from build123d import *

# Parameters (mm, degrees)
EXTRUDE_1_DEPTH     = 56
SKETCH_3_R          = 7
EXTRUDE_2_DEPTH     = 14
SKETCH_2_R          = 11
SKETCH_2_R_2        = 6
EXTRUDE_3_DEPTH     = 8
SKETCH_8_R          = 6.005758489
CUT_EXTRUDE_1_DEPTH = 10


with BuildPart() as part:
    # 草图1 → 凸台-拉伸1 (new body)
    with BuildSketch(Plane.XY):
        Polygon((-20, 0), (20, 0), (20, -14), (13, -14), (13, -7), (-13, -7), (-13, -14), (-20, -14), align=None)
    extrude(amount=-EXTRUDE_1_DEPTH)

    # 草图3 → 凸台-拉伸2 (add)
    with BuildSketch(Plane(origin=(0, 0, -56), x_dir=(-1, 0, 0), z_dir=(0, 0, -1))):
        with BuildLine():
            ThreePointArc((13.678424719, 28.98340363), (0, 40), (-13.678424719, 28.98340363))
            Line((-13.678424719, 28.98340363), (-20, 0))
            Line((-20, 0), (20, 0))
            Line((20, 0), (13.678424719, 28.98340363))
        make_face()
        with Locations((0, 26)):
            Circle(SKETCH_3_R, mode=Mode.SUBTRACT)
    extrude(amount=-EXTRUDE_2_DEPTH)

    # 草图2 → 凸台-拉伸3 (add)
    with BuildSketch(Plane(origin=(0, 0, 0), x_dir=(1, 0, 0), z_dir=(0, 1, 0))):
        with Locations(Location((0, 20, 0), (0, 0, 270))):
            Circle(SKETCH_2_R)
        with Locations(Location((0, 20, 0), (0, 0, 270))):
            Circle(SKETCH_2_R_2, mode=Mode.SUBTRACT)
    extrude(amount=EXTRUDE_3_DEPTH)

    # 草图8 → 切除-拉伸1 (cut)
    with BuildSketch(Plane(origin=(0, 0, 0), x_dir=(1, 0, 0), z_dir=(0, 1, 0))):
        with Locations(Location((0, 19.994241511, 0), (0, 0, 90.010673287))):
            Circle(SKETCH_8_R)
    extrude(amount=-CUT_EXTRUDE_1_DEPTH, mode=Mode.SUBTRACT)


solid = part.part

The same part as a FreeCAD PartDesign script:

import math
import FreeCAD as App
import Part
import Sketcher


def add_polygon(sketch, points):
    """Adds a closed chain of lines whose ends are joined by coincident constraints."""
    first, n = sketch.GeometryCount, len(points)
    for a, b in zip(points, points[1:] + points[:1]):
        sketch.addGeometry(Part.LineSegment(App.Vector(*a, 0), App.Vector(*b, 0)), False)
    for i in range(n):
        sketch.addConstraint(Sketcher.Constraint("Coincident", first + i, 2, first + (i + 1) % n, 1))

doc = App.newDocument("Part")
body = doc.addObject("PartDesign::Body", "Body")

sketch1 = doc.addObject("Sketcher::SketchObject", "Sketch")
body.addObject(sketch1)
sketch1.AttachmentSupport = (doc.XY_Plane, [""])
sketch1.MapMode = "FlatFace"
add_polygon(sketch1, [(20, 0), (-20, 0), (-20, -14), (-13, -14), (-13, -7), (13, -7), (13, -14), (20, -14)])
sketch1.addConstraint([
    Sketcher.Constraint("Horizontal", 0),
    Sketcher.Constraint("Vertical", 1),
    Sketcher.Constraint("Horizontal", 2),
    Sketcher.Constraint("Vertical", 3),
    Sketcher.Constraint("Horizontal", 4),
    Sketcher.Constraint("Vertical", 5),
    Sketcher.Constraint("Horizontal", 6),
    Sketcher.Constraint("Vertical", 7),
    Sketcher.Constraint("Symmetric", 0, 2, 7, 2, -1, 1),
    Sketcher.Constraint("Symmetric", 2, 2, 5, 2, -2),
    Sketcher.Constraint("Equal", 6, 3),
    Sketcher.Constraint("DistanceX", 0, 2, 0, 1, 40.0),
    Sketcher.Constraint("DistanceX", 2, 1, 2, 2, 7.0),
    Sketcher.Constraint("DistanceY", 1, 2, 1, 1, 14.0),
])
pad1 = doc.addObject("PartDesign::Pad", "Pad")
body.addObject(pad1)
pad1.Profile = sketch1
pad1.Length = 56
pad1.Reversed = True

sketch2 = doc.addObject("Sketcher::SketchObject", "Sketch001")
body.addObject(sketch2)
sketch2.AttachmentSupport = (doc.XY_Plane, [""])
sketch2.MapMode = "FlatFace"
sketch2.AttachmentOffset = App.Placement(App.Vector(0, 0, -56), App.Rotation())
sketch2.addGeometry([
    Part.ArcOfCircle(Part.Circle(App.Vector(0, 26, 0), App.Vector(0, 0, 1), 14), math.radians(12), math.radians(168)),
    Part.LineSegment(App.Vector(14, 29, 0), App.Vector(20, 0, 0)),
    Part.LineSegment(App.Vector(20, 0, 0), App.Vector(-20, 0, 0)),
    Part.LineSegment(App.Vector(-20, 0, 0), App.Vector(-14, 29, 0)),
    Part.Circle(App.Vector(0, 26, 0), App.Vector(0, 0, 1), 7),
], False)
sketch2.addConstraint([
    Sketcher.Constraint("Tangent", 0, 1, 1, 1),
    Sketcher.Constraint("Coincident", 1, 2, 2, 1),
    Sketcher.Constraint("Coincident", 2, 2, 3, 1),
    Sketcher.Constraint("Tangent", 3, 2, 0, 2),
    Sketcher.Constraint("Horizontal", 2),
    Sketcher.Constraint("Coincident", 4, 3, 0, 3),
    Sketcher.Constraint("Symmetric", 1, 2, 2, 2, -1, 1),
    Sketcher.Constraint("PointOnObject", 0, 3, -2),
    Sketcher.Constraint("Diameter", 4, 14.0),
    Sketcher.Constraint("Radius", 0, 14.0),
    Sketcher.Constraint("DistanceX", 2, 2, 2, 1, 40.0),
    Sketcher.Constraint("DistanceY", -1, 1, 0, 3, 26.0),
])
pad2 = doc.addObject("PartDesign::Pad", "Pad001")
body.addObject(pad2)
pad2.Profile = sketch2
pad2.Length = 14

sketch3 = doc.addObject("Sketcher::SketchObject", "Sketch002")
body.addObject(sketch3)
sketch3.AttachmentSupport = (doc.XZ_Plane, [""])
sketch3.MapMode = "FlatFace"
sketch3.addGeometry([
    Part.Circle(App.Vector(0, -20, 0), App.Vector(0, 0, 1), 11),
    Part.Circle(App.Vector(0, -20, 0), App.Vector(0, 0, 1), 6),
], False)
sketch3.addConstraint([
    Sketcher.Constraint("Coincident", 1, 3, 0, 3),
    Sketcher.Constraint("PointOnObject", 0, 3, -2),
    Sketcher.Constraint("Diameter", 0, 22.0),
    Sketcher.Constraint("Diameter", 1, 12.0),
    Sketcher.Constraint("DistanceY", 0, 3, -1, 1, 20.0),
])
pad3 = doc.addObject("PartDesign::Pad", "Pad002")
body.addObject(pad3)
pad3.Profile = sketch3
pad3.Length = 8
pad3.Reversed = True

sketch4 = doc.addObject("Sketcher::SketchObject", "Sketch003")
body.addObject(sketch4)
sketch4.AttachmentSupport = (doc.XZ_Plane, [""])
sketch4.MapMode = "FlatFace"
sketch4.addGeometry(Part.Circle(App.Vector(0, -20, 0), App.Vector(0, 0, 1), 6), False)
sketch4.addConstraint([
    Sketcher.Constraint("PointOnObject", 0, 3, -2),
    Sketcher.Constraint("Diameter", 0, 12.011517),
    Sketcher.Constraint("DistanceY", 0, 3, -1, 1, 19.994242),
])
pocket1 = doc.addObject("PartDesign::Pocket", "Pocket")
body.addObject(pocket1)
pocket1.Profile = sketch4
pocket1.Length = 10
pocket1.Reversed = True

doc.recompute()
